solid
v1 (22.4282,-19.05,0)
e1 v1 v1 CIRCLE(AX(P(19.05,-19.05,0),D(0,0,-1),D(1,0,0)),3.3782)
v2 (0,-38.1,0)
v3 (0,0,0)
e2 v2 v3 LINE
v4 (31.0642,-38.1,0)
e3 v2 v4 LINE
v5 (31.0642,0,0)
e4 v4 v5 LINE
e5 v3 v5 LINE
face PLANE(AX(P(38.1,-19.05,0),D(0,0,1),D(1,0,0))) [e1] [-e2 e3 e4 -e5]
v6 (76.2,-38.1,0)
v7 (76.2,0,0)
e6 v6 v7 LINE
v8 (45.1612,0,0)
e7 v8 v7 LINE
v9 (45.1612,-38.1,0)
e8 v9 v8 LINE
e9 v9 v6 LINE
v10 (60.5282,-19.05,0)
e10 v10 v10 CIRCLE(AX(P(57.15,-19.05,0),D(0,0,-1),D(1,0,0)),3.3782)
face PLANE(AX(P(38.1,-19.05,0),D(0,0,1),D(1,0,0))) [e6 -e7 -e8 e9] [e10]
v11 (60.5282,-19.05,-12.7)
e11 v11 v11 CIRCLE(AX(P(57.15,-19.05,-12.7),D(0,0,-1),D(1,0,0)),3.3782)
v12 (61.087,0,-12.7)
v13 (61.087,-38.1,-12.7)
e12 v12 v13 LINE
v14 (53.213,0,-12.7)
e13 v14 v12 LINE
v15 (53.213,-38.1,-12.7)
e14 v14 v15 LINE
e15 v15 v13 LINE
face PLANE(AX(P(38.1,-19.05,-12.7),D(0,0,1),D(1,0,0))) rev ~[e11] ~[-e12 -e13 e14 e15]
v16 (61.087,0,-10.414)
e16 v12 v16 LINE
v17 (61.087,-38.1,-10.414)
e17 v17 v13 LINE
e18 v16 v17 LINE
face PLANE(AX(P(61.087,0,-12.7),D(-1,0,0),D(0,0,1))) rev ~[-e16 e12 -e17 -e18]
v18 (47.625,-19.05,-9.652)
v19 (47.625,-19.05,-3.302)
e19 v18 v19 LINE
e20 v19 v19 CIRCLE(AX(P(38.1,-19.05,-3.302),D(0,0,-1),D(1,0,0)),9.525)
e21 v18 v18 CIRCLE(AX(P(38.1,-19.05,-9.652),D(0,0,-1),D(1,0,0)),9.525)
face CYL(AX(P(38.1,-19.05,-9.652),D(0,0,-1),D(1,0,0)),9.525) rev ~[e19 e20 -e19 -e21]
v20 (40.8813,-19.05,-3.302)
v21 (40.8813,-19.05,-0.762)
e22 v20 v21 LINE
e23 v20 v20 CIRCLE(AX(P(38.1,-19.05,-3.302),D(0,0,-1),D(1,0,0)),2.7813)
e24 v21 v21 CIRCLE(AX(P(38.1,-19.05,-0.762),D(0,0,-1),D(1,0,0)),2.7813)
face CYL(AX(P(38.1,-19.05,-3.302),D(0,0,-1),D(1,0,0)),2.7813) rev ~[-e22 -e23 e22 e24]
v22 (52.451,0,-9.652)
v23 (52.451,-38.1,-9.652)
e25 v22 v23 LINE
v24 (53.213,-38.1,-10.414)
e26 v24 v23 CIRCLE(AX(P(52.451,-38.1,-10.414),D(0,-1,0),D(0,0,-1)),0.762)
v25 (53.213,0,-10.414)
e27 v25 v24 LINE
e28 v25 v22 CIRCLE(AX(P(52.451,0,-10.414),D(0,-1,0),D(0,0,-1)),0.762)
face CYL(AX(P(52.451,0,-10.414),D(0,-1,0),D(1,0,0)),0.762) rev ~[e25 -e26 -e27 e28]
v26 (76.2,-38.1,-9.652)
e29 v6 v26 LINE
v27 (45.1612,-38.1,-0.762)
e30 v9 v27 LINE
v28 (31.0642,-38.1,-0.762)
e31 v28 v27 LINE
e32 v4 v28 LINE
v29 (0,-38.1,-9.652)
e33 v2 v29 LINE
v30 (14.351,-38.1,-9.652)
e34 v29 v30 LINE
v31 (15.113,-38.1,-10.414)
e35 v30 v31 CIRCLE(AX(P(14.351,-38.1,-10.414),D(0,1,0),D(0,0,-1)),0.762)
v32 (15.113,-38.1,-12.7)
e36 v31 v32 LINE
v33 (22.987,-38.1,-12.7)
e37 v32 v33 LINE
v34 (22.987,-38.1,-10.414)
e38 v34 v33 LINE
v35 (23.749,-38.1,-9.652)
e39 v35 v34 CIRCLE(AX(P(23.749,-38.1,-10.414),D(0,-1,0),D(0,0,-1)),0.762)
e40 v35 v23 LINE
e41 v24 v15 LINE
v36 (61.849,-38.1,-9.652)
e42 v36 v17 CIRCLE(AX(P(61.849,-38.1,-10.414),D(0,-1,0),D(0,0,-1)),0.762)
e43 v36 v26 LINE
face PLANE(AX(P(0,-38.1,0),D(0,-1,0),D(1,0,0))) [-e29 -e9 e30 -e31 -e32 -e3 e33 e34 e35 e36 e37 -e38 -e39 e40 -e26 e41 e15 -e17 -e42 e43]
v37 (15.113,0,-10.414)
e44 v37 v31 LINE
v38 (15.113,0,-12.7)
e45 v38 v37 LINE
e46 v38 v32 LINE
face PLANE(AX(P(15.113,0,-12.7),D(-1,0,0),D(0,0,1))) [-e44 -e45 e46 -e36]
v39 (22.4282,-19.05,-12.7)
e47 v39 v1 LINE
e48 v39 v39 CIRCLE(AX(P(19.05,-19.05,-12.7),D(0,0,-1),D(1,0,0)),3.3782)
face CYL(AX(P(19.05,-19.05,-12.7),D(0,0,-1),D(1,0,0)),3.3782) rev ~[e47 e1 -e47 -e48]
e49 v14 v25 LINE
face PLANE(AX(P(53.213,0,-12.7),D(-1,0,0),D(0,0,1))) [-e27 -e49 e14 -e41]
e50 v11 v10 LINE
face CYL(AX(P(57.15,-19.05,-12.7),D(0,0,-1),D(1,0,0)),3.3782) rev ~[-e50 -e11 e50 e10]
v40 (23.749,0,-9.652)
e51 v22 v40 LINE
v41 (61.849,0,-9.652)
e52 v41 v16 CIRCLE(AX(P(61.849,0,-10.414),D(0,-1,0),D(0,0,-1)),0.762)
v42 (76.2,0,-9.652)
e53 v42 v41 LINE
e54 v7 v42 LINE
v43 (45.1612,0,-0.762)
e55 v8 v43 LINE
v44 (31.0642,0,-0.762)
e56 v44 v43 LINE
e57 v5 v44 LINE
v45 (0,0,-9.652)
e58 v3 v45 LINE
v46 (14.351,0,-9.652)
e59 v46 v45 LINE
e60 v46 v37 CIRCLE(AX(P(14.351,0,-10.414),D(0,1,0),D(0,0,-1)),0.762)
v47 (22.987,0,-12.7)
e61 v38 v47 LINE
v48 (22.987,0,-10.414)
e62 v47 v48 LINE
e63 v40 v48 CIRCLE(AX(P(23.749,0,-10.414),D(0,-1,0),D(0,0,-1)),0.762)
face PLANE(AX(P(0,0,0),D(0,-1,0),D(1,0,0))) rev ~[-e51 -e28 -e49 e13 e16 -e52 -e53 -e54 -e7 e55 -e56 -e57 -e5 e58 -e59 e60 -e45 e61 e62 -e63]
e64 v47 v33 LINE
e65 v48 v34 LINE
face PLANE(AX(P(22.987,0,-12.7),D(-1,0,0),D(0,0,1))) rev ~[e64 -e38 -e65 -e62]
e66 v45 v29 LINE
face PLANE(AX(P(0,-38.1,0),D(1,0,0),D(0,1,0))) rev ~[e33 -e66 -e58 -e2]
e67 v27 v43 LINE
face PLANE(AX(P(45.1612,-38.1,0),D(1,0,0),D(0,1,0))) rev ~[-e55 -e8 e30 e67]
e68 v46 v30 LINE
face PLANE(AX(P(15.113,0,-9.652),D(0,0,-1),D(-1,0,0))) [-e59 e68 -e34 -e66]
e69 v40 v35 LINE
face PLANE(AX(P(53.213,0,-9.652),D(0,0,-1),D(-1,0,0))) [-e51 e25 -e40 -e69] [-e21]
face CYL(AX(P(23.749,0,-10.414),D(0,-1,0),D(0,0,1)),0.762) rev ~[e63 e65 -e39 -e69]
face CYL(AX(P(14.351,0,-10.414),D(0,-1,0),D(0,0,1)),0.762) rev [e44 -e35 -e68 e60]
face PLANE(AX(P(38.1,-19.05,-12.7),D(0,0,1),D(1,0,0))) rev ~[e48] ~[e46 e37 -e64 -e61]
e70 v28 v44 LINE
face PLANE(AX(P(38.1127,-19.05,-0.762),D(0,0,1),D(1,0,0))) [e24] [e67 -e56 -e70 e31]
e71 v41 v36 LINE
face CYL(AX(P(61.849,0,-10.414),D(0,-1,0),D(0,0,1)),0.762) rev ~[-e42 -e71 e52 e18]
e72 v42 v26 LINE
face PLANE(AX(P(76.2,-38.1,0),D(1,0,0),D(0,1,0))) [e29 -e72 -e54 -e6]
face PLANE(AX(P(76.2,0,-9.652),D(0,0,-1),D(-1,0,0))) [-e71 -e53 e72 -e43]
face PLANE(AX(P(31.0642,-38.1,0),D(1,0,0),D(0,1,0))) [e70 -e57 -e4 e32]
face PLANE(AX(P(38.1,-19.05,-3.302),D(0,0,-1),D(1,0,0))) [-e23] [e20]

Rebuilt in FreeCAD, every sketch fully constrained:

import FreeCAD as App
import Part
import Sketcher
Q = App.Units.Quantity


def edges_at(feature, points):
    """Names of the edges that pass closest to the given points."""
    edges = feature.Shape.Edges
    near = lambda p: min(range(len(edges)), key=lambda i: edges[i].distToShape(Part.Vertex(*p))[0])
    return sorted({f"Edge{near(p) + 1}" for p in points})

doc = App.newDocument("Part")
body = doc.addObject("PartDesign::Body", "Body")

sketch1 = doc.addObject("Sketcher::SketchObject", "Sketch")
body.addObject(sketch1)
sketch1.AttachmentSupport = (doc.XY_Plane, [""])
sketch1.MapMode = "FlatFace"
sketch1.addGeometry([
    Part.LineSegment(App.Vector(0, 0, 0), App.Vector(0, -38, 0)),
    Part.LineSegment(App.Vector(0, -38, 0), App.Vector(76, -38, 0)),
    Part.LineSegment(App.Vector(76, -38, 0), App.Vector(76, 0, 0)),
    Part.LineSegment(App.Vector(76, 0, 0), App.Vector(0, 0, 0)),
], False)
sketch1.addConstraint([
    Sketcher.Constraint("Coincident", 0, 2, 1, 1),
    Sketcher.Constraint("Coincident", 1, 2, 2, 1),
    Sketcher.Constraint("Coincident", 2, 2, 3, 1),
    Sketcher.Constraint("Coincident", 3, 2, 0, 1),
    Sketcher.Constraint("Vertical", 0),
    Sketcher.Constraint("Horizontal", 1),
    Sketcher.Constraint("Vertical", 2),
    Sketcher.Constraint("Horizontal", 3),
    Sketcher.Constraint("Coincident", 3, 2, -1, 1),
    Sketcher.Constraint("DistanceX", 1, 1, 1, 2, Q("3 in")),
    Sketcher.Constraint("DistanceY", 0, 2, 0, 1, Q("1.5 in")),
])
pad1 = doc.addObject("PartDesign::Pad", "Pad")
body.addObject(pad1)
pad1.Profile = sketch1
pad1.Length = Q("0.5 in")
pad1.Reversed = True

sketch2 = doc.addObject("Sketcher::SketchObject", "Sketch001")
body.addObject(sketch2)
sketch2.AttachmentSupport = (doc.XY_Plane, [""])
sketch2.MapMode = "FlatFace"
sketch2.addGeometry([
    Part.LineSegment(App.Vector(31, 0, 0), App.Vector(31, -38, 0)),
    Part.LineSegment(App.Vector(31, -38, 0), App.Vector(45, -38, 0)),
    Part.LineSegment(App.Vector(45, -38, 0), App.Vector(45, 0, 0)),
    Part.LineSegment(App.Vector(45, 0, 0), App.Vector(31, 0, 0)),
], False)
sketch2.addConstraint([
    Sketcher.Constraint("Coincident", 0, 2, 1, 1),
    Sketcher.Constraint("Coincident", 1, 2, 2, 1),
    Sketcher.Constraint("Coincident", 2, 2, 3, 1),
    Sketcher.Constraint("Coincident", 3, 2, 0, 1),
    Sketcher.Constraint("Vertical", 0),
    Sketcher.Constraint("Horizontal", 1),
    Sketcher.Constraint("Vertical", 2),
    Sketcher.Constraint("Horizontal", 3),
    Sketcher.Constraint("PointOnObject", 2, 2, -1),
    Sketcher.Constraint("DistanceY", 0, 2, 0, 1, Q("1.5 in")),
    Sketcher.Constraint("DistanceX", 1, 1, 1, 2, Q("0.555 in")),
    Sketcher.Constraint("DistanceX", -1, 1, 0, 2, Q("1.223 in")),
])
pocket1 = doc.addObject("PartDesign::Pocket", "Pocket")
body.addObject(pocket1)
pocket1.Profile = sketch2
pocket1.Length = Q("0.03 in")

sketch3 = doc.addObject("Sketcher::SketchObject", "Sketch002")
body.addObject(sketch3)
sketch3.AttachmentSupport = (doc.XZ_Plane, [""])
sketch3.MapMode = "FlatFace"
sketch3.addGeometry([
    Part.LineSegment(App.Vector(76.2, -9.7, 0), App.Vector(76.2, -12.7, 0)),
    Part.LineSegment(App.Vector(76.2, -12.7, 0), App.Vector(61.1, -12.7, 0)),
    Part.LineSegment(App.Vector(61.1, -12.7, 0), App.Vector(61.1, -9.7, 0)),
    Part.LineSegment(App.Vector(61.1, -9.7, 0), App.Vector(76.2, -9.7, 0)),
    Part.LineSegment(App.Vector(53.2, -9.7, 0), App.Vector(53.2, -12.7, 0)),
    Part.LineSegment(App.Vector(53.2, -12.7, 0), App.Vector(23, -12.7, 0)),
    Part.LineSegment(App.Vector(23, -12.7, 0), App.Vector(23, -9.7, 0)),
    Part.LineSegment(App.Vector(23, -9.7, 0), App.Vector(53.2, -9.7, 0)),
    Part.LineSegment(App.Vector(15.1, -9.7, 0), App.Vector(15.1, -12.7, 0)),
    Part.LineSegment(App.Vector(15.1, -12.7, 0), App.Vector(0, -12.7, 0)),
    Part.LineSegment(App.Vector(0, -12.7, 0), App.Vector(0, -9.7, 0)),
    Part.LineSegment(App.Vector(0, -9.7, 0), App.Vector(15.1, -9.7, 0)),
], False)
sketch3.addConstraint([
    Sketcher.Constraint("Coincident", 0, 2, 1, 1),
    Sketcher.Constraint("Coincident", 1, 2, 2, 1),
    Sketcher.Constraint("Coincident", 2, 2, 3, 1),
    Sketcher.Constraint("Coincident", 3, 2, 0, 1),
    Sketcher.Constraint("Coincident", 4, 2, 5, 1),
    Sketcher.Constraint("Coincident", 5, 2, 6, 1),
    Sketcher.Constraint("Coincident", 6, 2, 7, 1),
    Sketcher.Constraint("Coincident", 7, 2, 4, 1),
    Sketcher.Constraint("Coincident", 8, 2, 9, 1),
    Sketcher.Constraint("Coincident", 9, 2, 10, 1),
    Sketcher.Constraint("Coincident", 10, 2, 11, 1),
    Sketcher.Constraint("Coincident", 11, 2, 8, 1),
    Sketcher.Constraint("Vertical", 0),
    Sketcher.Constraint("Horizontal", 1),
    Sketcher.Constraint("Vertical", 2),
    Sketcher.Constraint("Horizontal", 3),
    Sketcher.Constraint("Vertical", 4),
    Sketcher.Constraint("Horizontal", 5),
    Sketcher.Constraint("Vertical", 6),
    Sketcher.Constraint("Horizontal", 7),
    Sketcher.Constraint("Vertical", 8),
    Sketcher.Constraint("Horizontal", 9),
    Sketcher.Constraint("Vertical", 10),
    Sketcher.Constraint("Horizontal", 11),
    Sketcher.Constraint("PointOnObject", 9, 2, -2),
    Sketcher.Constraint("Horizontal", 1, 2, 4, 2),
    Sketcher.Constraint("Horizontal", 3, 2, 6, 2),
    Sketcher.Constraint("Horizontal", 5, 2, 8, 2),
    Sketcher.Constraint("Horizontal", 7, 2, 10, 2),
    Sketcher.Constraint("Equal", 3, 9),
    Sketcher.Constraint("DistanceX", -1, 1, 0, 2, Q("3 in")),
    Sketcher.Constraint("DistanceX", 5, 2, 5, 1, Q("1.19 in")),
    Sketcher.Constraint("DistanceY", 0, 2, 0, 1, Q("0.12 in")),
    Sketcher.Constraint("DistanceY", 0, 2, -1, 1, Q("0.5 in")),
    Sketcher.Constraint("DistanceX", 5, 2, 1, 2, Q("1.5 in")),
    Sketcher.Constraint("DistanceX", 8, 2, 4, 2, Q("1.5 in")),
])
pocket2 = doc.addObject("PartDesign::Pocket", "Pocket001")
body.addObject(pocket2)
pocket2.Profile = sketch3
pocket2.Type = "ThroughAll"
pocket2.Reversed = True

sketch4 = doc.addObject("Sketcher::SketchObject", "Sketch003")
body.addObject(sketch4)
sketch4.AttachmentSupport = (doc.XY_Plane, [""])
sketch4.MapMode = "FlatFace"
sketch4.AttachmentOffset = App.Placement(App.Vector(0, 0, -0.38 * 25.4), App.Rotation())
sketch4.addGeometry(Part.Circle(App.Vector(38, -19, 0), App.Vector(0, 0, 1), 10), False)
sketch4.addConstraint([
    Sketcher.Constraint("Diameter", 0, Q("0.75 in")),
    Sketcher.Constraint("DistanceX", -1, 1, 0, 3, Q("1.5 in")),
    Sketcher.Constraint("DistanceY", 0, 3, -1, 1, Q("0.75 in")),
])
pocket3 = doc.addObject("PartDesign::Pocket", "Pocket002")
body.addObject(pocket3)
pocket3.Profile = sketch4
pocket3.Length = Q("0.25 in")
pocket3.Reversed = True

sketch5 = doc.addObject("Sketcher::SketchObject", "Sketch004")
body.addObject(sketch5)
sketch5.AttachmentSupport = (doc.XY_Plane, [""])
sketch5.MapMode = "FlatFace"
sketch5.AttachmentOffset = App.Placement(App.Vector(0, 0, -0.13 * 25.4), App.Rotation())
sketch5.addGeometry(Part.Circle(App.Vector(38.1, -19.1, 0), App.Vector(0, 0, 1), 2.8), False)
sketch5.addConstraint([
    Sketcher.Constraint("Diameter", 0, Q("0.219 in")),
    Sketcher.Constraint("DistanceX", -1, 1, 0, 3, Q("1.5 in")),
    Sketcher.Constraint("DistanceY", 0, 3, -1, 1, Q("0.75 in")),
])
pocket4 = doc.addObject("PartDesign::Pocket", "Pocket003")
body.addObject(pocket4)
pocket4.Profile = sketch5
pocket4.Type = "ThroughAll"
pocket4.Reversed = True

sketch6 = doc.addObject("Sketcher::SketchObject", "Sketch005")
body.addObject(sketch6)
sketch6.AttachmentSupport = (doc.XY_Plane, [""])
sketch6.MapMode = "FlatFace"
sketch6.AttachmentOffset = App.Placement(App.Vector(0, 0, -0.5 * 25.4), App.Rotation())
sketch6.addGeometry([
    Part.Circle(App.Vector(19.1, -19.1, 0), App.Vector(0, 0, 1), 3.4),
    Part.Circle(App.Vector(57.1, -19.1, 0), App.Vector(0, 0, 1), 3.4),
], False)
sketch6.addConstraint([
    Sketcher.Constraint("Equal", 0, 1),
    Sketcher.Constraint("Horizontal", 0, 3, 1, 3),
    Sketcher.Constraint("Diameter", 0, Q("0.266 in")),
    Sketcher.Constraint("DistanceX", 0, 3, 1, 3, Q("1.5 in")),
    Sketcher.Constraint("DistanceX", -1, 1, 0, 3, Q("0.75 in")),
    Sketcher.Constraint("DistanceY", 0, 3, -1, 1, Q("0.75 in")),
])
pocket5 = doc.addObject("PartDesign::Pocket", "Pocket004")
body.addObject(pocket5)
pocket5.Profile = sketch6
pocket5.Type = "ThroughAll"
pocket5.Reversed = True
doc.recompute()

fillet = doc.addObject("PartDesign::Fillet", "Fillet")
body.addObject(fillet)
fillet.Base = (pocket5, edges_at(pocket5, [
    (22.987, -19.05, -9.652),
    (53.213, -19.05, -9.652),
    (15.113, -19.05, -9.652),
    (61.087, -19.05, -9.652),
]))
fillet.Radius = Q("0.03 in")

doc.recompute()
